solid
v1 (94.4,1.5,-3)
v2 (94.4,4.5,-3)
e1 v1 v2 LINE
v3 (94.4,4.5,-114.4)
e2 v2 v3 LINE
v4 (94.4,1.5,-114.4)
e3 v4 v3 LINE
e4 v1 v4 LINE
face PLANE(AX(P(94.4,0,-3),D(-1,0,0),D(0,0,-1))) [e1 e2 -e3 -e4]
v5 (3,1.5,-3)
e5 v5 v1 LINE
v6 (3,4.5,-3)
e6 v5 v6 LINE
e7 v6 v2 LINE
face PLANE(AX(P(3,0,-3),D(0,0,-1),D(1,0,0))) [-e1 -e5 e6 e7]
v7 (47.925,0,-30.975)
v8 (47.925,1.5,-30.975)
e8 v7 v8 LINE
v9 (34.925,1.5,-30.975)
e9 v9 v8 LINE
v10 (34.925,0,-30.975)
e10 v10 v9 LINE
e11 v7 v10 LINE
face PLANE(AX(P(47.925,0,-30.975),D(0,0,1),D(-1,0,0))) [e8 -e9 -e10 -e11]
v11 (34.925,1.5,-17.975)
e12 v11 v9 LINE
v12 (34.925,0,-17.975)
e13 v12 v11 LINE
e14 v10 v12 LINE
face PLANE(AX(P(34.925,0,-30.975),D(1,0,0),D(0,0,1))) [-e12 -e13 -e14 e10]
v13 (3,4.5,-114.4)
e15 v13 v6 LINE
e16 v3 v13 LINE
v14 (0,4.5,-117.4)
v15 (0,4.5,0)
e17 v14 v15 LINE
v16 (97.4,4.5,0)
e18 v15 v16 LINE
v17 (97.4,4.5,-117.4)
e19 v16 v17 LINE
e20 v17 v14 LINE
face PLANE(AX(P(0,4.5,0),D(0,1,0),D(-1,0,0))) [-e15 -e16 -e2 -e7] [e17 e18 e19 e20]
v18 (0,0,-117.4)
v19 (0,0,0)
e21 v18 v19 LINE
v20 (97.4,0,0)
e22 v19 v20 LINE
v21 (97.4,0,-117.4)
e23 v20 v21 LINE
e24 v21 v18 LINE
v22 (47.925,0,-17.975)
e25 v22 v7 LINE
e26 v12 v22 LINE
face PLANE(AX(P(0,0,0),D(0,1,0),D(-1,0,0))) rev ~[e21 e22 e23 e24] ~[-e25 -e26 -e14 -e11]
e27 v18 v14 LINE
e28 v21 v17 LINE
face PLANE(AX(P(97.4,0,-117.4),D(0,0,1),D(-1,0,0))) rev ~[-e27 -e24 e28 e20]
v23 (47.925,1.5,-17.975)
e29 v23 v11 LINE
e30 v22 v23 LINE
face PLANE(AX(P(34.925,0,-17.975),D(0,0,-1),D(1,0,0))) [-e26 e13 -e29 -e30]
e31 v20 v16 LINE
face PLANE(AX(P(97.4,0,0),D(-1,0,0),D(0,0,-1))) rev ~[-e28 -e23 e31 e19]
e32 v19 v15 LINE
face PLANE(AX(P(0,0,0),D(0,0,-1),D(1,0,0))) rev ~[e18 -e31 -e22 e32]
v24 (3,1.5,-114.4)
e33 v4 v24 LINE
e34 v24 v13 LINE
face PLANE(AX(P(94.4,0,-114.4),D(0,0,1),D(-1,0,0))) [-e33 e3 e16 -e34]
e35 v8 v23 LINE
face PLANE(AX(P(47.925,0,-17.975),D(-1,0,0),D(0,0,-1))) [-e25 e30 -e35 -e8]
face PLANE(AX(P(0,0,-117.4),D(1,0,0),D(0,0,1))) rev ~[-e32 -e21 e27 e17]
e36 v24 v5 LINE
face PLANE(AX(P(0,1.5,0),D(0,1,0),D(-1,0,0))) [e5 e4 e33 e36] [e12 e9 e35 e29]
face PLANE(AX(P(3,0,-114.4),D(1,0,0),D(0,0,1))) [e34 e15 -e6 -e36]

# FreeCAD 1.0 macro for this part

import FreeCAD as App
import Part
import Sketcher

V = App.Vector


def add_polygon(sketch, points):
    """Adds a closed chain of lines whose ends are joined by coincident constraints."""
    first, n = sketch.GeometryCount, len(points)
    for a, b in zip(points, points[1:] + points[:1]):
        sketch.addGeometry(Part.LineSegment(App.Vector(*a, 0), App.Vector(*b, 0)), False)
    for i in range(n):
        sketch.addConstraint(Sketcher.Constraint("Coincident", first + i, 2, first + (i + 1) % n, 1))

doc = App.newDocument("Part")
body = doc.addObject("PartDesign::Body", "Body")

# Sketch on XZ plane
sketch1 = body.newObject("Sketcher::SketchObject", "Sketch")
sketch1.AttachmentSupport = (doc.getObject("XZ_Plane"), [""])
sketch1.MapMode = "FlatFace"
add_polygon(sketch1, [(3, -114.4), (3, -3), (94.4, -3), (94.4, -114.4)])  # lines 0-3
sketch1.addConstraint([
    Sketcher.Constraint("Vertical", 0),
    Sketcher.Constraint("Horizontal", 1),
    Sketcher.Constraint("Vertical", 2),
    Sketcher.Constraint("Horizontal", 3),
    Sketcher.Constraint("DistanceX", 1, 1, 1, 2, 91.4),
    Sketcher.Constraint("DistanceY", 0, 1, 0, 2, 111.4),
    Sketcher.Constraint("DistanceX", -1, 1, 0, 2, 3.0),
    Sketcher.Constraint("DistanceY", 0, 2, -1, 1, 3.0),
])
pad1 = body.newObject("PartDesign::Pad", "Pad")
pad1.Profile = sketch1
pad1.Length = 1.5
pad1.Reversed = True

# Sketch on XZ plane
sketch2 = body.newObject("Sketcher::SketchObject", "Sketch001")
sketch2.AttachmentSupport = (doc.getObject("XZ_Plane"), [""])
sketch2.MapMode = "FlatFace"
add_polygon(sketch2, [(0, -117.4), (0, 0), (97.4, 0), (97.4, -117.4)])  # lines 0-3
add_polygon(sketch2, [(94.4, -3), (3, -3), (3, -114.4), (94.4, -114.4)])  # lines 4-7
sketch2.addConstraint([
    Sketcher.Constraint("Vertical", 0),
    Sketcher.Constraint("Horizontal", 1),
    Sketcher.Constraint("Vertical", 2),
    Sketcher.Constraint("Horizontal", 3),
    Sketcher.Constraint("Horizontal", 4),
    Sketcher.Constraint("Vertical", 5),
    Sketcher.Constraint("Horizontal", 6),
    Sketcher.Constraint("Vertical", 7),
    Sketcher.Constraint("Coincident", 0, 2, -1, 1),
    Sketcher.Constraint("DistanceX", 4, 2, 4, 1, 91.4),
    Sketcher.Constraint("DistanceY", 5, 2, 5, 1, 111.4),
    Sketcher.Constraint("DistanceX", -1, 1, 4, 2, 3.0),
    Sketcher.Constraint("DistanceY", 4, 2, -1, 1, 3.0),
    Sketcher.Constraint("DistanceY", 3, 2, 5, 2, 3.0),
    Sketcher.Constraint("DistanceX", 6, 2, 2, 2, 3.0),
])
pad2 = body.newObject("PartDesign::Pad", "Pad001")
pad2.Profile = sketch2
pad2.Length = 4.5
pad2.Reversed = True

# Sketch on XZ plane
sketch3 = body.newObject("Sketcher::SketchObject", "Sketch002")
sketch3.AttachmentSupport = (doc.getObject("XZ_Plane"), [""])
sketch3.MapMode = "FlatFace"
add_polygon(sketch3, [(34.925, -30.975), (47.925, -30.975), (47.925, -17.975), (34.925, -17.975)])  # lines 0-3
sketch3.addConstraint([
    Sketcher.Constraint("Horizontal", 0),
    Sketcher.Constraint("Vertical", 1),
    Sketcher.Constraint("Horizontal", 2),
    Sketcher.Constraint("Vertical", 3),
    Sketcher.Constraint("Equal", 2, 1),
    Sketcher.Constraint("DistanceX", 0, 1, 0, 2, 13.0),
    Sketcher.Constraint("DistanceY", 1, 2, -1, 1, 17.975),
    Sketcher.Constraint("DistanceX", -1, 1, 2, 2, 34.925),
])
pocket1 = body.newObject("PartDesign::Pocket", "Pocket")
pocket1.Profile = sketch3
pocket1.Length = 10

doc.recompute()
